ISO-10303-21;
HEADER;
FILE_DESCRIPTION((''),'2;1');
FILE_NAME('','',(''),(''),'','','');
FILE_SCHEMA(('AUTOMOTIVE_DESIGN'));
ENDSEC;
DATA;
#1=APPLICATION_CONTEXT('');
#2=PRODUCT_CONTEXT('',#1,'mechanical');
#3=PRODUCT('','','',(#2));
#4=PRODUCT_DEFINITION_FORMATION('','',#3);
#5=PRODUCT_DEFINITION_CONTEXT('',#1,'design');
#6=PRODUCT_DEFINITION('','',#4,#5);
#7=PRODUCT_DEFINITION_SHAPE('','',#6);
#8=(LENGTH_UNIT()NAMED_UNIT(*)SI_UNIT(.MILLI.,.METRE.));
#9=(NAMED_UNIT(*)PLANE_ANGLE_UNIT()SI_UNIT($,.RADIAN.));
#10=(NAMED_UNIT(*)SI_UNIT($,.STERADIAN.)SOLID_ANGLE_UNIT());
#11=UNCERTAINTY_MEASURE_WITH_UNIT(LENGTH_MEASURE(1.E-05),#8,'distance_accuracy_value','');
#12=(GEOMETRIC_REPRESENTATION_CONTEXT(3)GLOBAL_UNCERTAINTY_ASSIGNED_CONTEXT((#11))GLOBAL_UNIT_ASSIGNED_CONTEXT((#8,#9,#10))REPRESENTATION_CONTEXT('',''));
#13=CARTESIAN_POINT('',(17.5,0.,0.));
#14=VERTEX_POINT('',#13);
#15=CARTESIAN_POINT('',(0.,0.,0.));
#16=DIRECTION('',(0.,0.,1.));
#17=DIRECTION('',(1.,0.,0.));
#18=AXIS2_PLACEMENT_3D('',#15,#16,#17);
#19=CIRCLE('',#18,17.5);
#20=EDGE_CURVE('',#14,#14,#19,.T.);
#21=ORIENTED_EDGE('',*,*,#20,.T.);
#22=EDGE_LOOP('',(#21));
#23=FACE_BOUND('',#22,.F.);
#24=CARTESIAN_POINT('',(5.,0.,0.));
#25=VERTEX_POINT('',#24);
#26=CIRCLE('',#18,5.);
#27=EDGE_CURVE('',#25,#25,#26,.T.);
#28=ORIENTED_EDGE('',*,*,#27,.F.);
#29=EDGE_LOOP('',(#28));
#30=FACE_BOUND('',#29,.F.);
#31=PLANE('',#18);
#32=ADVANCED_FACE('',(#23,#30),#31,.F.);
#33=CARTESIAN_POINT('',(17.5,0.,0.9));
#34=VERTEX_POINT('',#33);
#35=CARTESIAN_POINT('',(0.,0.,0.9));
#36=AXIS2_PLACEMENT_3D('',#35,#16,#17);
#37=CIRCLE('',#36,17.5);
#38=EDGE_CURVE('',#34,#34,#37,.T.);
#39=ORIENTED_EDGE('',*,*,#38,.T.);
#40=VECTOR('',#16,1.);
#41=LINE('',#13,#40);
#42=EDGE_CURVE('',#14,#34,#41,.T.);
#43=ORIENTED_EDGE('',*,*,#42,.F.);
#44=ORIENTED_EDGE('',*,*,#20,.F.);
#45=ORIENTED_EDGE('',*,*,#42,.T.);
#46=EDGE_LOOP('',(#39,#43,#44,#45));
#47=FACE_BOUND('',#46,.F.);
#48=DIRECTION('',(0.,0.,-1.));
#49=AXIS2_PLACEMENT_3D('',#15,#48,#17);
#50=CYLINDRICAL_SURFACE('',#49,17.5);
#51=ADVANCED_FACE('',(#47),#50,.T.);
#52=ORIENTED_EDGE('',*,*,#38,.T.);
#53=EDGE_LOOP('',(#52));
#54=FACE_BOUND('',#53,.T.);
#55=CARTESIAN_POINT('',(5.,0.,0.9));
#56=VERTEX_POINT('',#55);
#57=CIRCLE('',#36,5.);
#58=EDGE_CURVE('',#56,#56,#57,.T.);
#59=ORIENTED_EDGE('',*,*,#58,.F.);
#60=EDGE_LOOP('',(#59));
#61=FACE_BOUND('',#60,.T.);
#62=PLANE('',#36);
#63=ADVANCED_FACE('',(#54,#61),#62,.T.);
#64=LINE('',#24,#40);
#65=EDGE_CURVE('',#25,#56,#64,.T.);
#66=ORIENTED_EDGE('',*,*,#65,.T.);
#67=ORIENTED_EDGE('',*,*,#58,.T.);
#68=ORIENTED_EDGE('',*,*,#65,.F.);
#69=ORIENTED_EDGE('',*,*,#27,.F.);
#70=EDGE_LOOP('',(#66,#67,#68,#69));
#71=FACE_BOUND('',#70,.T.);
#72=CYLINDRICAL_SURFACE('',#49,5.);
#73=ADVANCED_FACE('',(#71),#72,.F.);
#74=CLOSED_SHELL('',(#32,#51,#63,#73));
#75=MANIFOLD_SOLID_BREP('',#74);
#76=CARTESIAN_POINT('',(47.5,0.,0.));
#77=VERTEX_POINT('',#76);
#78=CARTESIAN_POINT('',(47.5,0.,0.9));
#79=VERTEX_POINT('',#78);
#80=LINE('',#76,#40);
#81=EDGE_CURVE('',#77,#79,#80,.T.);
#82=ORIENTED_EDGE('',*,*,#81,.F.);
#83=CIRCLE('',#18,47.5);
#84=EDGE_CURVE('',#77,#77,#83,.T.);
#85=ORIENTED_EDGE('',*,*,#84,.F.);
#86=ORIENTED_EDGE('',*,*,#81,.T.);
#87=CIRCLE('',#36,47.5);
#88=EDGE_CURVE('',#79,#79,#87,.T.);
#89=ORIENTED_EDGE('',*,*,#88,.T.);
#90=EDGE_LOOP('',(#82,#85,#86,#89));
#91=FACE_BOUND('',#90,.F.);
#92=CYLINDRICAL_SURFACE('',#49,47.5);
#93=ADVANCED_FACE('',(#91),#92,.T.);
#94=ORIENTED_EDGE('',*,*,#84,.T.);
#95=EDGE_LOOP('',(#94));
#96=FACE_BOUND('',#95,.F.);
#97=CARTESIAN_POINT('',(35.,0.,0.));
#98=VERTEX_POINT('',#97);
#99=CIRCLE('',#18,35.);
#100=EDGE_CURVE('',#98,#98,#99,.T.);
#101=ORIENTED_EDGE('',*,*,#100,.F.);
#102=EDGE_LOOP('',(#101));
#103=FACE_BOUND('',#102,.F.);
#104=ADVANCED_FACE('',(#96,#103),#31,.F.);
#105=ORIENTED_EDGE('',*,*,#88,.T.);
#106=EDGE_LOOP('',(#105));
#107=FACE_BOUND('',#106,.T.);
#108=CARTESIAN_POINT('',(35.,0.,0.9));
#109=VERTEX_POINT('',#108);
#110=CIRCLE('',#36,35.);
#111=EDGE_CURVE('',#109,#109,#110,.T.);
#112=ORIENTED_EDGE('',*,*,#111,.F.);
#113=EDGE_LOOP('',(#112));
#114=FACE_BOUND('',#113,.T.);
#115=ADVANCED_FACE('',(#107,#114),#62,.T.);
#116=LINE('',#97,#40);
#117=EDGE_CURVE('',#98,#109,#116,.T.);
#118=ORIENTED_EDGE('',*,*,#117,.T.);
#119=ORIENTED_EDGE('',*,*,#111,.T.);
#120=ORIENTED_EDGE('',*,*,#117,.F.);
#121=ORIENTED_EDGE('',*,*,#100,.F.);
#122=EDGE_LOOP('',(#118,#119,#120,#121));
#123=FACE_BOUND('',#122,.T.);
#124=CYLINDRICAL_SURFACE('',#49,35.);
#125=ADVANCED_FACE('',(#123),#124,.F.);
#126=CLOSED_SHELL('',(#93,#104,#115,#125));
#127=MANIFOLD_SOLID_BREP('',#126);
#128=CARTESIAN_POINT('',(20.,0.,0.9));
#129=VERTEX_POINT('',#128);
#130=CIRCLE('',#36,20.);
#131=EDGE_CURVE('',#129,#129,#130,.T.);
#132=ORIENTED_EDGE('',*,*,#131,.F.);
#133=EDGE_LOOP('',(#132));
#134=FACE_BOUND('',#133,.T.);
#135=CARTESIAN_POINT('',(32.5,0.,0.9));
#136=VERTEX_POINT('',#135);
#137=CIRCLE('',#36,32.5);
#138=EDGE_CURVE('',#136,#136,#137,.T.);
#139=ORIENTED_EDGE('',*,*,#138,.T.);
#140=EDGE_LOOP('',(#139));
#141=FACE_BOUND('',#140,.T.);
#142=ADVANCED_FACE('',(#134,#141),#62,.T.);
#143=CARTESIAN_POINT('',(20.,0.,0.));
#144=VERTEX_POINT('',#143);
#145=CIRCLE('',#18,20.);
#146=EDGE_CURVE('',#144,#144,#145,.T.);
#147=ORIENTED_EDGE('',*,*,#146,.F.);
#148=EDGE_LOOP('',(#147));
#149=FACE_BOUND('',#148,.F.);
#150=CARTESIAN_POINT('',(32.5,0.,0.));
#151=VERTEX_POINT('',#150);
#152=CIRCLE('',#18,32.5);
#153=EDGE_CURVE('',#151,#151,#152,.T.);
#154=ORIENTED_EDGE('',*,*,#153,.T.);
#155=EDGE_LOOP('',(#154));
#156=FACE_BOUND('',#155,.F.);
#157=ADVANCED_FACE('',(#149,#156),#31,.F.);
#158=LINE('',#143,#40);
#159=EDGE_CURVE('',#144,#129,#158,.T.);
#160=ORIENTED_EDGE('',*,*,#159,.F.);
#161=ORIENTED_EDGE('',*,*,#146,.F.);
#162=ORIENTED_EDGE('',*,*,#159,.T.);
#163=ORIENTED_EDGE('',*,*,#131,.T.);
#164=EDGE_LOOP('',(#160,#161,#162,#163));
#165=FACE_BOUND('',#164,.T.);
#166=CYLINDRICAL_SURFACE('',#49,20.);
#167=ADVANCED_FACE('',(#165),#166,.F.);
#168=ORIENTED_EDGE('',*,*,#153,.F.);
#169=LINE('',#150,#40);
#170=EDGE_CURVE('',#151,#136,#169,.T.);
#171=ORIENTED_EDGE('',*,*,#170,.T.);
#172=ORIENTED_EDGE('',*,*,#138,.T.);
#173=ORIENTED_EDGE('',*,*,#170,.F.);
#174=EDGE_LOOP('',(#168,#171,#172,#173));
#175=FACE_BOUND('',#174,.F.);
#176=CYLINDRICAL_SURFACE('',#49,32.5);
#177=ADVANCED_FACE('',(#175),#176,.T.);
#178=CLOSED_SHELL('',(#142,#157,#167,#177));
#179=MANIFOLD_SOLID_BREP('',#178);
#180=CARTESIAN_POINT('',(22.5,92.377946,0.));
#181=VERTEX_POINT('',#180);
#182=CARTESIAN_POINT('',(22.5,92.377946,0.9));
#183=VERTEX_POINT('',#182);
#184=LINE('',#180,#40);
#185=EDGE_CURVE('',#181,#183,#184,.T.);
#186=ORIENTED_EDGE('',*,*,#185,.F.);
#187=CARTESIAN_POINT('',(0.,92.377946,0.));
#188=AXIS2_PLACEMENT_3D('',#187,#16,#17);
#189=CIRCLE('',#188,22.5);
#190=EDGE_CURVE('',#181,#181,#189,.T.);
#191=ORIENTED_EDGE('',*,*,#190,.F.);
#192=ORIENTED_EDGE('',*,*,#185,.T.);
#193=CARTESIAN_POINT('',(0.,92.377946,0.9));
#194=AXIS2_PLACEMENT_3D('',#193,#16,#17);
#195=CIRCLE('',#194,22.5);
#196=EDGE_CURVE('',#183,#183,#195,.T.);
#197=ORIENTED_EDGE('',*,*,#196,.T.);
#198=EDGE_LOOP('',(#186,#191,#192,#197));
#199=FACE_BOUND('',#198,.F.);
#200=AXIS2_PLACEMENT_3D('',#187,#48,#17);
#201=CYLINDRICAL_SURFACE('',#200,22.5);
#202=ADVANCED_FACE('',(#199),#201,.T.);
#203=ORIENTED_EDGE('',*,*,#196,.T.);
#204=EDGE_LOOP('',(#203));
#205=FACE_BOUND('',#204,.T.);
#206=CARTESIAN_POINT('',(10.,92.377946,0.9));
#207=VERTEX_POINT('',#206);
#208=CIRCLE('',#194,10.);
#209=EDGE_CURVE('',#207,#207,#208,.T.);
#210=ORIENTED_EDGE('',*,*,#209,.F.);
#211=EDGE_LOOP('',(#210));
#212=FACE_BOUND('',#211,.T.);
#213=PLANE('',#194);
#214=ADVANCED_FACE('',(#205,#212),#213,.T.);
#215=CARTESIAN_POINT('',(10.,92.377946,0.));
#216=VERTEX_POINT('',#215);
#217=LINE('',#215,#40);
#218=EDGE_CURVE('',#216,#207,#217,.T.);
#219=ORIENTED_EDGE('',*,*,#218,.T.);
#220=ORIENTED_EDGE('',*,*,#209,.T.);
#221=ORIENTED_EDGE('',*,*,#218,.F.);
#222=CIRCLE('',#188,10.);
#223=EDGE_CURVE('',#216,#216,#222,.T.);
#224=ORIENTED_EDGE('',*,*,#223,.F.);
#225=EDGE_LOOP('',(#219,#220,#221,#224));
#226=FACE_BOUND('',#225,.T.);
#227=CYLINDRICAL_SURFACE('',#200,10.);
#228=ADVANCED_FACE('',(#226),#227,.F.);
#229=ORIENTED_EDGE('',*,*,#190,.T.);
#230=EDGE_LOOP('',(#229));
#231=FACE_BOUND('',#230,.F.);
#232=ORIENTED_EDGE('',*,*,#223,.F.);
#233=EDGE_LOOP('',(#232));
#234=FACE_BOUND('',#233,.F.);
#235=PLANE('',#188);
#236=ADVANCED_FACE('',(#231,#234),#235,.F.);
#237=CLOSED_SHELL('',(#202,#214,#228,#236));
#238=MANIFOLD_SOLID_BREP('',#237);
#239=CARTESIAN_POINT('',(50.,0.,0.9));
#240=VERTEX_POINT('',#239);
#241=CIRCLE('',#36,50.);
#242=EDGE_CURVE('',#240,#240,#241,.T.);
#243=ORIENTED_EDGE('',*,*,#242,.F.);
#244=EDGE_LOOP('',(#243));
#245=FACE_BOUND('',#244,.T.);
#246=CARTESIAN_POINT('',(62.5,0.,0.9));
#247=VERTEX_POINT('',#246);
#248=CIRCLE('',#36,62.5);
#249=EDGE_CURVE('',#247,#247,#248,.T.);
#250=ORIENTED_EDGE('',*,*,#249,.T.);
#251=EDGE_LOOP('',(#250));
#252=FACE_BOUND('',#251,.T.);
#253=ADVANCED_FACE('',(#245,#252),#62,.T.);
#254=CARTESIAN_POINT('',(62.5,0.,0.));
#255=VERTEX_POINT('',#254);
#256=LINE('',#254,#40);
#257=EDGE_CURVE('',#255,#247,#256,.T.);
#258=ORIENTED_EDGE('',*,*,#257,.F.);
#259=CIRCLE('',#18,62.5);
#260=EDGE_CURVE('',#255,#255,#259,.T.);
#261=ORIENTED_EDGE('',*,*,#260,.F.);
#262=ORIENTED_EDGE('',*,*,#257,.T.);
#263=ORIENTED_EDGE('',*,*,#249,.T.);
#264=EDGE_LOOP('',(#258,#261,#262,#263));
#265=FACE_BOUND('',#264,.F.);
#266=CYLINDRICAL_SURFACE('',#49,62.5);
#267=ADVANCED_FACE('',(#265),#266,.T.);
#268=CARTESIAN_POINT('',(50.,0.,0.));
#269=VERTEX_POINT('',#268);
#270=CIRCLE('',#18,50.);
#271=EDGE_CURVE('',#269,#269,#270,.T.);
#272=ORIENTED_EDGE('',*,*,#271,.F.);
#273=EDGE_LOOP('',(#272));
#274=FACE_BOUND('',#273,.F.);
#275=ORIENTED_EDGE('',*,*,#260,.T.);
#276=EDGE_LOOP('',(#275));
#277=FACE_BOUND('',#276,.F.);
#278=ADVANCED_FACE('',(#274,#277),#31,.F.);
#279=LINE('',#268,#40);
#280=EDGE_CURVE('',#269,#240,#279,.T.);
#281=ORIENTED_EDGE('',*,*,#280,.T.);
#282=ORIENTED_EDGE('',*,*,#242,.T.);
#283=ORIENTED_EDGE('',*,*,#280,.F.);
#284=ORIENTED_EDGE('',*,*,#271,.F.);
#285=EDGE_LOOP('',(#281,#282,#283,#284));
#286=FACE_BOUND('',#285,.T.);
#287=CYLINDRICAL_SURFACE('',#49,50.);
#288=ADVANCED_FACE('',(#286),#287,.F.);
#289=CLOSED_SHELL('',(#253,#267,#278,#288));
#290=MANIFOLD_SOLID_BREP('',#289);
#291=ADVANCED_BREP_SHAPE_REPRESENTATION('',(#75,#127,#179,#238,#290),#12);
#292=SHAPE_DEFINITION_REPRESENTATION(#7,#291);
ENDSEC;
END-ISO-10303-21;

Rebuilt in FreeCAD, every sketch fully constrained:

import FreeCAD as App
import Part
import Sketcher
from FreeCAD import Vector

doc = App.newDocument("Part")
body = doc.addObject("PartDesign::Body", "Body")
body.AllowCompound = True

sketch1 = doc.addObject("Sketcher::SketchObject", "Sketch")
body.addObject(sketch1)
sketch1.AttachmentSupport = (doc.XY_Plane, [""])
sketch1.MapMode = "FlatFace"
sketch1.addGeometry([
    Part.Circle(Vector(0, 0, 0), Vector(0, 0, 1), 62.5),
    Part.Circle(Vector(0, 0, 0), Vector(0, 0, 1), 50),
    Part.Circle(Vector(0, 0, 0), Vector(0, 0, 1), 47.5),
    Part.Circle(Vector(0, 0, 0), Vector(0, 0, 1), 35),
    Part.Circle(Vector(0, 0, 0), Vector(0, 0, 1), 32.5),
    Part.Circle(Vector(0, 0, 0), Vector(0, 0, 1), 20),
    Part.Circle(Vector(0, 0, 0), Vector(0, 0, 1), 17.5),
    Part.Circle(Vector(0, 0, 0), Vector(0, 0, 1), 5),
    Part.Circle(Vector(0, 92.377946, 0), Vector(0, 0, 1), 22.5),
    Part.Circle(Vector(0, 92.377946, 0), Vector(0, 0, 1), 10),
], False)
sketch1.addConstraint([
    Sketcher.Constraint("Coincident", 0, 3, -1, 1),
    Sketcher.Constraint("Coincident", 1, 3, -1, 1),
    Sketcher.Constraint("Coincident", 2, 3, -1, 1),
    Sketcher.Constraint("Coincident", 3, 3, -1, 1),
    Sketcher.Constraint("Coincident", 4, 3, -1, 1),
    Sketcher.Constraint("Coincident", 5, 3, -1, 1),
    Sketcher.Constraint("Coincident", 6, 3, -1, 1),
    Sketcher.Constraint("Coincident", 7, 3, -1, 1),
    Sketcher.Constraint("Coincident", 9, 3, 8, 3),
    Sketcher.Constraint("PointOnObject", 8, 3, -2),
    Sketcher.Constraint("Diameter", 0, 125.0),
    Sketcher.Constraint("Diameter", 1, 100.0),
    Sketcher.Constraint("Diameter", 2, 95.0),
    Sketcher.Constraint("Diameter", 3, 70.0),
    Sketcher.Constraint("Diameter", 4, 65.0),
    Sketcher.Constraint("Diameter", 5, 40.0),
    Sketcher.Constraint("Diameter", 6, 35.0),
    Sketcher.Constraint("Diameter", 7, 10.0),
    Sketcher.Constraint("Diameter", 8, 45.0),
    Sketcher.Constraint("Diameter", 9, 20.0),
    Sketcher.Constraint("DistanceY", -1, 1, 8, 3, 92.377946),
])
pad1 = doc.addObject("PartDesign::Pad", "Pad")
body.addObject(pad1)
pad1.Profile = sketch1
pad1.Length = 0.9

doc.recompute()
